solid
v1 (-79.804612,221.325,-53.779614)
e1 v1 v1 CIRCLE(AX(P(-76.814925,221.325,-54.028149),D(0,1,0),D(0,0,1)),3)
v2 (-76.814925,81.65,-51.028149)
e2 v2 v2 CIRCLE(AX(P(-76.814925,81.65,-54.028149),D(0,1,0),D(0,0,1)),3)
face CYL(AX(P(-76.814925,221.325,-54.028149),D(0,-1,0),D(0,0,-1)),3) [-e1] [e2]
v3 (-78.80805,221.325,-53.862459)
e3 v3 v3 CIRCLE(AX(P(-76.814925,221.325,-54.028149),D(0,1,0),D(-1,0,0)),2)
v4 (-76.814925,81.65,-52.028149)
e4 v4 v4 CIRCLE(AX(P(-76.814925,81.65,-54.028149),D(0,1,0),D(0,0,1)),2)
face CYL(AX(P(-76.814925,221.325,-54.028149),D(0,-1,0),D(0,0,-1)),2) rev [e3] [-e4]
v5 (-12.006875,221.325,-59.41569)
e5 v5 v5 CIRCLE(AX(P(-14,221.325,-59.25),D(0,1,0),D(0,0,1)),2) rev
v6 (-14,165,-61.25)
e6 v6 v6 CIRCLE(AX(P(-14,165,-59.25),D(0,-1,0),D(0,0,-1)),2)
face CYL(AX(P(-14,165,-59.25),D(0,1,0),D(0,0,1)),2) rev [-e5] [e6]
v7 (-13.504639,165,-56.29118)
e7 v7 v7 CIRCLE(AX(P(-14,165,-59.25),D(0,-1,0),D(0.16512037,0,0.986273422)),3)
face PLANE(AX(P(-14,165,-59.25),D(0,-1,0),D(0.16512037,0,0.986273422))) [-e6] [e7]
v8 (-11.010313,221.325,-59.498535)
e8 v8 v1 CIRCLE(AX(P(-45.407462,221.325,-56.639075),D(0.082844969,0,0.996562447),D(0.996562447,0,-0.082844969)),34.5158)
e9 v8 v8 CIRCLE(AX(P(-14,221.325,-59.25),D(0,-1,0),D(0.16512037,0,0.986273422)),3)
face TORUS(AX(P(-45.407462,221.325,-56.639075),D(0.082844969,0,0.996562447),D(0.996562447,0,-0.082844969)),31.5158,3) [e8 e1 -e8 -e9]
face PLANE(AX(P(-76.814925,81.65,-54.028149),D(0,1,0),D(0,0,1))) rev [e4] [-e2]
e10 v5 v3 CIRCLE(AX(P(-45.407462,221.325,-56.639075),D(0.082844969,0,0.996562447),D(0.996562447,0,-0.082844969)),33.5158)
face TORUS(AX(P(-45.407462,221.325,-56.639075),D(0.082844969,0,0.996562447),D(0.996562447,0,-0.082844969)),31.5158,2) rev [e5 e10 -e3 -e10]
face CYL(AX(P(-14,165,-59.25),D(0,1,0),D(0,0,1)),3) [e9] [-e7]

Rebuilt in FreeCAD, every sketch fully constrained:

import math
import FreeCAD as App
import Part
import Sketcher

V = App.Vector
Q = App.Units.Quantity

doc = App.newDocument("Part")
body = doc.addObject("PartDesign::Body", "Body")

# Sketch on XZ plane
sketch1 = body.newObject("Sketcher::SketchObject", "Sketch")
sketch1.AttachmentSupport = (doc.getObject("XZ_Plane"), [""])
sketch1.MapMode = "FlatFace"
sketch1.AttachmentOffset = App.Placement(V(0, 0, -165), App.Rotation())
sketch1.addGeometry([
    Part.Circle(V(-14, -59.2, 0), V(0, 0, 1), 3),
    Part.Circle(V(-14, -59.2, 0), V(0, 0, 1), 2),
], False)
sketch1.addConstraint([
    Sketcher.Constraint("Coincident", 1, 3, 0, 3),
    Sketcher.Constraint("Diameter", 0, Q("6 mm")),
    Sketcher.Constraint("Diameter", 1, Q("4 mm")),
    Sketcher.Constraint("DistanceX", 0, 3, -1, 1, Q("14 mm")),
    Sketcher.Constraint("DistanceY", 0, 3, -1, 1, Q("59.25 mm")),
])

# Sketch on an angled plane
sketch2 = body.newObject("Sketcher::SketchObject", "Sketch001")
sketch2.Placement = App.Placement(V(-4.987777, 0, -59.999193), App.Rotation(V(0.996562447, 0, -0.082844969), V(0, 1, 0), V(0.082844969, 0, 0.996562447), "ZXY"))
sketch2.addGeometry([
    Part.LineSegment(V(-9, 165, 0), V(-9, 221, 0)),
    Part.ArcOfCircle(Part.Circle(V(-41, 221, 0), V(0, 0, 1), 32), math.radians(0), math.radians(180)),
    Part.LineSegment(V(-72, 221, 0), V(-72, 82, 0)),
], False)
sketch2.addConstraint([
    Sketcher.Constraint("Tangent", 0, 2, 1, 1),
    Sketcher.Constraint("Tangent", 1, 2, 2, 1),
    Sketcher.Constraint("Vertical", 0),
    Sketcher.Constraint("Vertical", 2),
    Sketcher.Constraint("DistanceY", -1, 1, 0, 1, Q("165 mm")),
    Sketcher.Constraint("Radius", 1, Q("31.5158 mm")),
    Sketcher.Constraint("DistanceY", 0, 1, 0, 2, Q("56.325 mm")),
    Sketcher.Constraint("DistanceY", 2, 2, 2, 1, Q("139.675 mm")),
    Sketcher.Constraint("DistanceX", 1, 3, -1, 1, Q("40.559109 mm")),
])
doc.recompute()

additivepipe = body.newObject("PartDesign::AdditivePipe", "AdditivePipe")
additivepipe.Profile = sketch1
additivepipe.Spine = (sketch2, ["Edge1", "Edge2", "Edge3"])

doc.recompute()
